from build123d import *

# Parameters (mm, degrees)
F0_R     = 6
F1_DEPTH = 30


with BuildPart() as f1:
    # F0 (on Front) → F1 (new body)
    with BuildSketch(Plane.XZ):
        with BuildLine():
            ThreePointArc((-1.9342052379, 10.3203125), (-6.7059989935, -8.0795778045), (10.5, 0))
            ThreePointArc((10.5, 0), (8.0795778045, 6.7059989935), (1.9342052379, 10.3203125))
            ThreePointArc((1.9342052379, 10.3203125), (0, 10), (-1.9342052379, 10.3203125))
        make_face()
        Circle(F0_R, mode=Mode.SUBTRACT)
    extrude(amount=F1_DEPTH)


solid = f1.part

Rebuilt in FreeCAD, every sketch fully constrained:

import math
import FreeCAD as App
import Part
import Sketcher

V = App.Vector
Q = App.Units.Quantity

doc = App.newDocument("Part")
body = doc.addObject("PartDesign::Body", "Body")

# Sketch on XZ plane
sketch1 = body.newObject("Sketcher::SketchObject", "Sketch")
sketch1.AttachmentSupport = (doc.getObject("XZ_Plane"), [""])
sketch1.MapMode = "FlatFace"
sketch1.addGeometry([
    Part.ArcOfCircle(Part.Circle(V(0, 0, 0), V(0, 0, 1), 10.5), math.radians(101), math.radians(360)),
    Part.ArcOfCircle(Part.Circle(V(0, 0, 0), V(0, 0, 1), 10.5), math.radians(0), math.radians(79)),
    Part.ArcOfCircle(Part.Circle(V(0, 16, 0), V(0, 0, 1), 6), math.radians(-109), math.radians(-71)),
    Part.Circle(V(0, 0, 0), V(0, 0, 1), 6),
], False)
sketch1.addConstraint([
    Sketcher.Constraint("Tangent", 0, 2, 1, 1),
    Sketcher.Constraint("Coincident", 1, 2, 2, 2),
    Sketcher.Constraint("Coincident", 2, 1, 0, 1),
    Sketcher.Constraint("Coincident", 0, 3, -1, 1),
    Sketcher.Constraint("Coincident", 3, 3, -1, 1),
    Sketcher.Constraint("Equal", 0, 1),
    Sketcher.Constraint("Equal", 2, 3),
    Sketcher.Constraint("PointOnObject", 2, 3, -2),
    Sketcher.Constraint("PointOnObject", 0, 2, -1),
    Sketcher.Constraint("Diameter", 3, Q("12 mm")),
    Sketcher.Constraint("Radius", 0, Q("10.5 mm")),
    Sketcher.Constraint("DistanceY", -1, 1, 2, 3, Q("16 mm")),
])
pad1 = body.newObject("PartDesign::Pad", "Pad")
pad1.Profile = sketch1
pad1.Length = 30

doc.recompute()
